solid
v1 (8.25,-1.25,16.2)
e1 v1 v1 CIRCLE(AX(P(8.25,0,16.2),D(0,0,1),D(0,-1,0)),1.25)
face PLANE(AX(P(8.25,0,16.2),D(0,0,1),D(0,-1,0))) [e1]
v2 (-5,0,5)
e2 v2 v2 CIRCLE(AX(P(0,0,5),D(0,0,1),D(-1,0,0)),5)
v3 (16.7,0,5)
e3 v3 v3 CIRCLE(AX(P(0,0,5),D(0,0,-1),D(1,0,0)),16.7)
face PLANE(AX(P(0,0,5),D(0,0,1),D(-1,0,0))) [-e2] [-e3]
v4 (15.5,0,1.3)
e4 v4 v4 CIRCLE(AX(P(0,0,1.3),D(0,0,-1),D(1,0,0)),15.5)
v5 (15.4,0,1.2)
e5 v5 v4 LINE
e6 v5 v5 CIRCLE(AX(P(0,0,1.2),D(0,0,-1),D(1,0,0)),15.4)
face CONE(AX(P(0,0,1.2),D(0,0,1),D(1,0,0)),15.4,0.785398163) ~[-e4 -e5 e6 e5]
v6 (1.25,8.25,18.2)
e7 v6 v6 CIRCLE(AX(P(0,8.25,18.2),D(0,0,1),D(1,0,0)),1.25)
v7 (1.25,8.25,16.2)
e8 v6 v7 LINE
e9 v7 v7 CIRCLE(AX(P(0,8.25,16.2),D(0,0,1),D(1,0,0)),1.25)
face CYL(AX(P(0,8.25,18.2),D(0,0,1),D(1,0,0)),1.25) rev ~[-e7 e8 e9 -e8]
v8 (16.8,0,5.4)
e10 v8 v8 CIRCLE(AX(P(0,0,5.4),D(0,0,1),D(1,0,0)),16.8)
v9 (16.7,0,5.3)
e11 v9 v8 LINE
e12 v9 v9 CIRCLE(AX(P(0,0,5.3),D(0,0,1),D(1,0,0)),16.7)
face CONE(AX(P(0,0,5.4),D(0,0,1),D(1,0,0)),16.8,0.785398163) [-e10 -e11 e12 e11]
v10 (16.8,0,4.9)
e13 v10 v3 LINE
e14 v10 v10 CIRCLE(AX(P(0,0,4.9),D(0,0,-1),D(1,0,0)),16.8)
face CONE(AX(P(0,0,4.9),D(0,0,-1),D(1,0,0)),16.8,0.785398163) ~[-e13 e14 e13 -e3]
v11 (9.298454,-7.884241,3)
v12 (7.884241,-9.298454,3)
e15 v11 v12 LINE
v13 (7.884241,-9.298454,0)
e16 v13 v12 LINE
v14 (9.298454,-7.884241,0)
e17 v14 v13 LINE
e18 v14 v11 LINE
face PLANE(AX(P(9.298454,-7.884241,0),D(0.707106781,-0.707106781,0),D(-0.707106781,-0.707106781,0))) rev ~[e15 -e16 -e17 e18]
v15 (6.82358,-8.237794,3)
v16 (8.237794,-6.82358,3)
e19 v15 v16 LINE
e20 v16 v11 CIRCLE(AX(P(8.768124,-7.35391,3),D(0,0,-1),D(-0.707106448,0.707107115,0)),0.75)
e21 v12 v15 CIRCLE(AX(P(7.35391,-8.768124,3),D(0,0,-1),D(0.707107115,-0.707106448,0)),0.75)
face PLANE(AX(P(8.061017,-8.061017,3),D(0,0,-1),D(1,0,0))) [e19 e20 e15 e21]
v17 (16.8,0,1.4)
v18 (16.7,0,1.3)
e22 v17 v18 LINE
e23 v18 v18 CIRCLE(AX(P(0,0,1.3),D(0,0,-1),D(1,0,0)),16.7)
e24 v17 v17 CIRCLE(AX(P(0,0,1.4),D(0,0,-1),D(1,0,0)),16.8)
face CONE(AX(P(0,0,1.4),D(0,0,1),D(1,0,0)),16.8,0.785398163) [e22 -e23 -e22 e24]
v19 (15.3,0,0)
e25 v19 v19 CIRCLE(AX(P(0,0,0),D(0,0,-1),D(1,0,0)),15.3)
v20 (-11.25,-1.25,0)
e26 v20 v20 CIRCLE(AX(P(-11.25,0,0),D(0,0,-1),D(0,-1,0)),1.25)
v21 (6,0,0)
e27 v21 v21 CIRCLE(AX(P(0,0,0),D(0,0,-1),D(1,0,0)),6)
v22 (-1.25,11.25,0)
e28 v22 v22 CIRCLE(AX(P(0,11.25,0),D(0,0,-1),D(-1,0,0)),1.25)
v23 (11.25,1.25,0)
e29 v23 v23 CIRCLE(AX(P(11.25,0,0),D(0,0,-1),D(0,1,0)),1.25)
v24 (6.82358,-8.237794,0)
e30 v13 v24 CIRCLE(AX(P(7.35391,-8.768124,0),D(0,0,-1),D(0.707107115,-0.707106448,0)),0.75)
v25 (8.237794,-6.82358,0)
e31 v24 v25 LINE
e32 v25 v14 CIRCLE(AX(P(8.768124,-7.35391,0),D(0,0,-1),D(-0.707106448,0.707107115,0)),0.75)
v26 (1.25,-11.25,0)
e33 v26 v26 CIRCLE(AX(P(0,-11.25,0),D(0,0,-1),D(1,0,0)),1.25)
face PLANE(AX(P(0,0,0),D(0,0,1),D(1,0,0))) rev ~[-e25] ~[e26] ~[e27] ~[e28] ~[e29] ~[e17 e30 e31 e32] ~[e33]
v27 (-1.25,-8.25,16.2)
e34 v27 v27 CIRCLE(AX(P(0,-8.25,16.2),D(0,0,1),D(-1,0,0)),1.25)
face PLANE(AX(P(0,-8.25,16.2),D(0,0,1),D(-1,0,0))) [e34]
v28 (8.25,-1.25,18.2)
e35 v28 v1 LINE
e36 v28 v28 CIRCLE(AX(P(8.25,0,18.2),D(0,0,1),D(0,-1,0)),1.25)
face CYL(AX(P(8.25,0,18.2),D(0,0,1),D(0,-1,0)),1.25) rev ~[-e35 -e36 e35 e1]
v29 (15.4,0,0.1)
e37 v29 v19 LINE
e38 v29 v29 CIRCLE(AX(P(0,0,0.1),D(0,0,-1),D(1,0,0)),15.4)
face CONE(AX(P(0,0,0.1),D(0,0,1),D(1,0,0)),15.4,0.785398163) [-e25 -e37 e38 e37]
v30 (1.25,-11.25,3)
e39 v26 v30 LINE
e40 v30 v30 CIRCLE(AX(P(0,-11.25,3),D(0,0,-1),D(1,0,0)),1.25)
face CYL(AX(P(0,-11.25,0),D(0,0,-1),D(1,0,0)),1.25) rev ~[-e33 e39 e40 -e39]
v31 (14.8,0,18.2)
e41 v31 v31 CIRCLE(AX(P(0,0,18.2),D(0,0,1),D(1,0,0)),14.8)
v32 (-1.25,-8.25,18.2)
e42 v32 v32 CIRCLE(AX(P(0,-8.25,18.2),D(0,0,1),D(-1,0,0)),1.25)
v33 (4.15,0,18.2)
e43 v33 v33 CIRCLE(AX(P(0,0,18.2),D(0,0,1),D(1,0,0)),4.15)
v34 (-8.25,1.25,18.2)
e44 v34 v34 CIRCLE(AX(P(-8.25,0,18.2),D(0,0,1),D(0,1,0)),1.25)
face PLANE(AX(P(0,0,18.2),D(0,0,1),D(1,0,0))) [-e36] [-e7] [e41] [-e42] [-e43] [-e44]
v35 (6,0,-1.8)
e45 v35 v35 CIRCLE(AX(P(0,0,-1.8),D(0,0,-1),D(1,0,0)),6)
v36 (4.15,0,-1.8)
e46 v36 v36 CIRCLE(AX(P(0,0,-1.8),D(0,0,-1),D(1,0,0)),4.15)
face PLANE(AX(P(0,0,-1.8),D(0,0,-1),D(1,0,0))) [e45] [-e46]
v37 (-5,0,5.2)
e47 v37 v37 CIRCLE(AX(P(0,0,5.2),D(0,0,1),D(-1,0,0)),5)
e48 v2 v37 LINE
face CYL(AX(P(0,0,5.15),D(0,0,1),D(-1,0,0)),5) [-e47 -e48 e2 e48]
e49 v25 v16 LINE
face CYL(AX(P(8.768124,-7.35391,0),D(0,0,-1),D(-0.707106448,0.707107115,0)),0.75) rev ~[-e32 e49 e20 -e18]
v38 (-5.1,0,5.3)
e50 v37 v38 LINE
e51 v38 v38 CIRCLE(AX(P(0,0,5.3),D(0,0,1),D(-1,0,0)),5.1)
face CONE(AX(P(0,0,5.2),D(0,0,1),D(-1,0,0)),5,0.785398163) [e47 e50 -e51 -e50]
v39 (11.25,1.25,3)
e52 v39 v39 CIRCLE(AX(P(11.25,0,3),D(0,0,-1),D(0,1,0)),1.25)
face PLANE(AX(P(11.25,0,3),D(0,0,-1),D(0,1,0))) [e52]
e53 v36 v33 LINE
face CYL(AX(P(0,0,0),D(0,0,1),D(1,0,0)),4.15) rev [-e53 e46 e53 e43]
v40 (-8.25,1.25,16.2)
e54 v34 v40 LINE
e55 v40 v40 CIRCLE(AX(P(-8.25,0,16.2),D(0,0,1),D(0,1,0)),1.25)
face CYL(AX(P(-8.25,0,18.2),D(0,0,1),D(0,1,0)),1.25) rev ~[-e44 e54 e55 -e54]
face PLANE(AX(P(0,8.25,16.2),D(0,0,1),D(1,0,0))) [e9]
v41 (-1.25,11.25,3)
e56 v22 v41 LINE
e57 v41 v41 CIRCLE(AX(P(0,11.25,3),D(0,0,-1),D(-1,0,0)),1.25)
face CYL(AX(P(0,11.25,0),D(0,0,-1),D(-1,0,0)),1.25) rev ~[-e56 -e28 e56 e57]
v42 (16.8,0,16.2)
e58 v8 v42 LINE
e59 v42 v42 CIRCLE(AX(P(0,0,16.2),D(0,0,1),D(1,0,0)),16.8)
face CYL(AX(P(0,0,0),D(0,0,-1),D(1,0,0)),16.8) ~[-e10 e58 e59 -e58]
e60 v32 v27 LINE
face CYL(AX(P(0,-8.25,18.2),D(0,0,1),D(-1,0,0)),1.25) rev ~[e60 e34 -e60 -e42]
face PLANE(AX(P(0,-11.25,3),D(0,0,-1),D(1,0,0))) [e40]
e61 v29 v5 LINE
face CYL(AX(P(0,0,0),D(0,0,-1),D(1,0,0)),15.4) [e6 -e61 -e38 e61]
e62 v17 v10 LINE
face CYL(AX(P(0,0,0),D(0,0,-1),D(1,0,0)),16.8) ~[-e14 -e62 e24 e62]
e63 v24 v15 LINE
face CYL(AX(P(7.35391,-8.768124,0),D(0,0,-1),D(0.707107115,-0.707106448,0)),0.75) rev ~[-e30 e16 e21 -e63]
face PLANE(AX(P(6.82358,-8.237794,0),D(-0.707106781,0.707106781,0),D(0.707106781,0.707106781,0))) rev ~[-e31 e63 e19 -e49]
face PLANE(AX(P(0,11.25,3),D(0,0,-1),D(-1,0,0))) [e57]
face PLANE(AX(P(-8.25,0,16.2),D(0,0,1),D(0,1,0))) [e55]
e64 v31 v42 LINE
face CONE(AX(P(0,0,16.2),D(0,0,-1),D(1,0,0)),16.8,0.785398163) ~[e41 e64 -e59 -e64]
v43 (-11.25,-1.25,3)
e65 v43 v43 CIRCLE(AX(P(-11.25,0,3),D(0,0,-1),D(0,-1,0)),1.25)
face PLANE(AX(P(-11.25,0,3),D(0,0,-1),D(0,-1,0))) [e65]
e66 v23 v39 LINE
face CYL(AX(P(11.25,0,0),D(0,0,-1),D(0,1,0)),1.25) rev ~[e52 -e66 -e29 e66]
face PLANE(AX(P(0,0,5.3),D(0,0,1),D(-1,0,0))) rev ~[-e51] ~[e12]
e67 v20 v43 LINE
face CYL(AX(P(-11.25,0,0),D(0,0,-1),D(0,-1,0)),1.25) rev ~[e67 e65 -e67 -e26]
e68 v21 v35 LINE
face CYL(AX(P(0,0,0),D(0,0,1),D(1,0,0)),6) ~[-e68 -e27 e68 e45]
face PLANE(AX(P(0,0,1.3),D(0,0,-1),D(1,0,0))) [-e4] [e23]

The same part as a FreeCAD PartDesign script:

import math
import FreeCAD as App
import Part
import Sketcher
Q = App.Units.Quantity


def edges_at(feature, points):
    """Names of the edges that pass closest to the given points."""
    edges = feature.Shape.Edges
    near = lambda p: min(range(len(edges)), key=lambda i: edges[i].distToShape(Part.Vertex(*p))[0])
    return sorted({f"Edge{near(p) + 1}" for p in points})

doc = App.newDocument("Part")
params = doc.addObject("Spreadsheet::Sheet", "Params")
for row, (alias, value) in enumerate([
    ("sketch1_diameter", "33.6 mm"),
    ("pad1_length", "18.2 mm"),
    ("sketch2_diameter", "2.5 mm"),
    ("pocket1_length", "2 mm"),
    ("sketch3_diameter", "8.3 mm"),
    ("sketch4_diameter", "2.5 mm"),
    ("pocket3_length", "3 mm"),
    ("sketch5_diameter", "12 mm"),
    ("sketch5_diameter2", "8.3 mm"),
    ("pad2_length", "1.8 mm"),
    ("sketch6_diameter", "33.6 mm"),
    ("sketch6_diameter2", "30.8 mm"),
    ("pocket4_length", "1.3 mm"),
    ("sketch7_width", "11.8 mm"),
    ("sketch7_height", "0.3 mm"),
    ("groove_angle", "360 deg"),
    ("chamfer_size", "2 mm"),
    ("chamfer2_size", "0.1 mm"),
    ("chamfer3_size", "0.1 mm"),
    ("chamfer4_size", "0.1 mm"),
    ("chamfer5_size", "0.1 mm"),
    ("chamfer6_size", "0.1 mm"),
    ("sketch8_radius", "0.75 mm"),
    ("sketch8_length", "2.000001 mm"),
    ("pocket5_length", "3 mm"),
], start=1):
    params.set(f"A{row}", alias)
    params.set(f"B{row}", "=" + value)
    params.setAlias(f"B{row}", alias)

body = doc.addObject("PartDesign::Body", "Body")

sketch1 = doc.addObject("Sketcher::SketchObject", "Sketch")
body.addObject(sketch1)
sketch1.AttachmentSupport = (doc.XY_Plane, [""])
sketch1.MapMode = "FlatFace"
sketch1.addGeometry(Part.Circle(App.Vector(0, 0, 0), App.Vector(0, 0, 1), 16.8), False)
sketch1.addConstraint([
    Sketcher.Constraint("Coincident", 0, 3, -1, 1),
    Sketcher.Constraint("Diameter", 0, Q("33.6 mm")),
])
sketch1.setExpression("Constraints[1]", "Params.sketch1_diameter")
pad1 = doc.addObject("PartDesign::Pad", "Pad")
body.addObject(pad1)
pad1.Profile = sketch1
pad1.setExpression("Length", "Params.pad1_length")

sketch2 = doc.addObject("Sketcher::SketchObject", "Sketch001")
body.addObject(sketch2)
sketch2.AttachmentSupport = (doc.XY_Plane, [""])
sketch2.MapMode = "FlatFace"
sketch2.AttachmentOffset = App.Placement(App.Vector(0, 0, 18.2), App.Rotation())
sketch2.addGeometry(Part.Circle(App.Vector(0, 8.25, 0), App.Vector(0, 0, 1), 1.25), False)
sketch2.addConstraint([
    Sketcher.Constraint("PointOnObject", 0, 3, -2),
    Sketcher.Constraint("Diameter", 0, Q("2.5 mm")),
    Sketcher.Constraint("DistanceY", -1, 1, 0, 3, Q("8.25 mm")),
])
sketch2.setExpression("Constraints[1]", "Params.sketch2_diameter")
pocket1 = doc.addObject("PartDesign::Pocket", "Pocket")
body.addObject(pocket1)
pocket1.Profile = sketch2
pocket1.setExpression("Length", "Params.pocket1_length")
doc.recompute()

polarpattern = doc.addObject("PartDesign::PolarPattern", "PolarPattern")
body.addObject(polarpattern)
polarpattern.Originals = [pocket1]
polarpattern.Axis = (doc.Z_Axis, [""])
polarpattern.Angle = 360
polarpattern.Occurrences = 4
body.Tip = polarpattern

sketch3 = doc.addObject("Sketcher::SketchObject", "Sketch002")
body.addObject(sketch3)
sketch3.AttachmentSupport = (doc.XY_Plane, [""])
sketch3.MapMode = "FlatFace"
sketch3.AttachmentOffset = App.Placement(App.Vector(0, 0, 18.2), App.Rotation())
sketch3.addGeometry(Part.Circle(App.Vector(0, 0, 0), App.Vector(0, 0, 1), 4.15), False)
sketch3.addConstraint([
    Sketcher.Constraint("Coincident", 0, 3, -1, 1),
    Sketcher.Constraint("Diameter", 0, Q("8.3 mm")),
])
sketch3.setExpression("Constraints[1]", "Params.sketch3_diameter")
pocket2 = doc.addObject("PartDesign::Pocket", "Pocket001")
body.addObject(pocket2)
pocket2.Profile = sketch3
pocket2.Type = "ThroughAll"

sketch4 = doc.addObject("Sketcher::SketchObject", "Sketch003")
body.addObject(sketch4)
sketch4.AttachmentSupport = (doc.XY_Plane, [""])
sketch4.MapMode = "FlatFace"
sketch4.addGeometry(Part.Circle(App.Vector(0, -11.25, 0), App.Vector(0, 0, 1), 1.25), False)
sketch4.addConstraint([
    Sketcher.Constraint("PointOnObject", 0, 3, -2),
    Sketcher.Constraint("Diameter", 0, Q("2.5 mm")),
    Sketcher.Constraint("DistanceY", 0, 3, -1, 1, Q("11.25 mm")),
])
sketch4.setExpression("Constraints[1]", "Params.sketch4_diameter")
pocket3 = doc.addObject("PartDesign::Pocket", "Pocket002")
body.addObject(pocket3)
pocket3.Profile = sketch4
pocket3.setExpression("Length", "Params.pocket3_length")
pocket3.Reversed = True
doc.recompute()

polarpattern2 = doc.addObject("PartDesign::PolarPattern", "PolarPattern001")
body.addObject(polarpattern2)
polarpattern2.Originals = [pocket3]
polarpattern2.Axis = (doc.Z_Axis, [""])
polarpattern2.Angle = 360
polarpattern2.Occurrences = 4
body.Tip = polarpattern2

sketch5 = doc.addObject("Sketcher::SketchObject", "Sketch004")
body.addObject(sketch5)
sketch5.AttachmentSupport = (doc.XY_Plane, [""])
sketch5.MapMode = "FlatFace"
sketch5.addGeometry([
    Part.Circle(App.Vector(0, 0, 0), App.Vector(0, 0, 1), 6),
    Part.Circle(App.Vector(0, 0, 0), App.Vector(0, 0, 1), 4.15),
], False)
sketch5.addConstraint([
    Sketcher.Constraint("Coincident", 0, 3, -1, 1),
    Sketcher.Constraint("Coincident", 1, 3, -1, 1),
    Sketcher.Constraint("Diameter", 0, Q("12 mm")),
    Sketcher.Constraint("Diameter", 1, Q("8.3 mm")),
])
sketch5.setExpression("Constraints[2]", "Params.sketch5_diameter")
sketch5.setExpression("Constraints[3]", "Params.sketch5_diameter2")
pad2 = doc.addObject("PartDesign::Pad", "Pad001")
body.addObject(pad2)
pad2.Profile = sketch5
pad2.setExpression("Length", "Params.pad2_length")
pad2.Reversed = True

sketch6 = doc.addObject("Sketcher::SketchObject", "Sketch005")
body.addObject(sketch6)
sketch6.AttachmentSupport = (doc.XY_Plane, [""])
sketch6.MapMode = "FlatFace"
sketch6.addGeometry([
    Part.Circle(App.Vector(0, 0, 0), App.Vector(0, 0, 1), 16.8),
    Part.Circle(App.Vector(0, 0, 0), App.Vector(0, 0, 1), 15.4),
], False)
sketch6.addConstraint([
    Sketcher.Constraint("Coincident", 0, 3, -1, 1),
    Sketcher.Constraint("Coincident", 1, 3, -1, 1),
    Sketcher.Constraint("Diameter", 0, Q("33.6 mm")),
    Sketcher.Constraint("Diameter", 1, Q("30.8 mm")),
])
sketch6.setExpression("Constraints[2]", "Params.sketch6_diameter")
sketch6.setExpression("Constraints[3]", "Params.sketch6_diameter2")
pocket4 = doc.addObject("PartDesign::Pocket", "Pocket003")
body.addObject(pocket4)
pocket4.Profile = sketch6
pocket4.setExpression("Length", "Params.pocket4_length")
pocket4.Reversed = True

sketch7 = doc.addObject("Sketcher::SketchObject", "Sketch006")
body.addObject(sketch7)
sketch7.AttachmentSupport = (doc.XZ_Plane, [""])
sketch7.MapMode = "FlatFace"
sketch7.addGeometry([
    Part.LineSegment(App.Vector(-16.8, 5.3, 0), App.Vector(-16.8, 5, 0)),
    Part.LineSegment(App.Vector(-16.8, 5, 0), App.Vector(-5, 5, 0)),
    Part.LineSegment(App.Vector(-5, 5, 0), App.Vector(-5, 5.3, 0)),
    Part.LineSegment(App.Vector(-5, 5.3, 0), App.Vector(-16.8, 5.3, 0)),
], False)
sketch7.addConstraint([
    Sketcher.Constraint("Coincident", 0, 2, 1, 1),
    Sketcher.Constraint("Coincident", 1, 2, 2, 1),
    Sketcher.Constraint("Coincident", 2, 2, 3, 1),
    Sketcher.Constraint("Coincident", 3, 2, 0, 1),
    Sketcher.Constraint("Vertical", 0),
    Sketcher.Constraint("Horizontal", 1),
    Sketcher.Constraint("Vertical", 2),
    Sketcher.Constraint("Horizontal", 3),
    Sketcher.Constraint("DistanceX", 1, 1, 1, 2, Q("11.8 mm")),
    Sketcher.Constraint("DistanceY", 0, 2, 0, 1, Q("0.3 mm")),
    Sketcher.Constraint("DistanceY", -1, 1, 0, 2, Q("5 mm")),
    Sketcher.Constraint("DistanceX", 1, 2, -1, 1, Q("5 mm")),
])
sketch7.setExpression("Constraints[8]", "Params.sketch7_width")
sketch7.setExpression("Constraints[9]", "Params.sketch7_height")
groove = doc.addObject("PartDesign::Groove", "Groove")
body.addObject(groove)
groove.Profile = sketch7
groove.ReferenceAxis = (sketch7, ["V_Axis"])
groove.setExpression("Angle", "Params.groove_angle")
doc.recompute()

chamfer = doc.addObject("PartDesign::Chamfer", "Chamfer")
body.addObject(chamfer)
chamfer.Base = (groove, edges_at(groove, [(-16.8, 0, 18.2)]))
chamfer.setExpression("Size", "Params.chamfer_size")
doc.recompute()

chamfer2 = doc.addObject("PartDesign::Chamfer", "Chamfer001")
body.addObject(chamfer2)
chamfer2.Base = (chamfer, edges_at(chamfer, [(-16.8, 0, 1.3)]))
chamfer2.setExpression("Size", "Params.chamfer2_size")
doc.recompute()

chamfer3 = doc.addObject("PartDesign::Chamfer", "Chamfer002")
body.addObject(chamfer3)
chamfer3.Base = (chamfer2, edges_at(chamfer2, [(-15.4, 0, 0)]))
chamfer3.setExpression("Size", "Params.chamfer3_size")
doc.recompute()

chamfer4 = doc.addObject("PartDesign::Chamfer", "Chamfer003")
body.addObject(chamfer4)
chamfer4.Base = (chamfer3, edges_at(chamfer3, [(-15.4, 0, 1.3)]))
chamfer4.setExpression("Size", "Params.chamfer4_size")
doc.recompute()

chamfer5 = doc.addObject("PartDesign::Chamfer", "Chamfer004")
body.addObject(chamfer5)
chamfer5.Base = (chamfer4, edges_at(chamfer4, [(-16.8, 0, 5)]))
chamfer5.setExpression("Size", "Params.chamfer5_size")
doc.recompute()

chamfer6 = doc.addObject("PartDesign::Chamfer", "Chamfer005")
body.addObject(chamfer6)
chamfer6.Base = (chamfer5, edges_at(chamfer5, [(5, 0, 5.3), (-16.8, 0, 5.3), (-16.8, 0, 5.3)]))
chamfer6.setExpression("Size", "Params.chamfer6_size")

sketch8 = doc.addObject("Sketcher::SketchObject", "Sketch007")
body.addObject(sketch8)
sketch8.AttachmentSupport = (doc.XY_Plane, [""])
sketch8.MapMode = "FlatFace"
sketch8.addGeometry([
    Part.ArcOfCircle(Part.Circle(App.Vector(7.35391, -8.768124, 0), App.Vector(0, 0, 1), 0.75), math.radians(135.000027), math.radians(315.000027)),
    Part.LineSegment(App.Vector(6.82358, -8.237794, 0), App.Vector(8.237794, -6.82358, 0)),
    Part.ArcOfCircle(Part.Circle(App.Vector(8.768124, -7.35391, 0), App.Vector(0, 0, 1), 0.75), math.radians(-45.000027), math.radians(134.999973)),
    Part.LineSegment(App.Vector(9.298454, -7.884241, 0), App.Vector(7.884241, -9.298454, 0)),
], False)
sketch8.addConstraint([
    Sketcher.Constraint("Tangent", 0, 1, 1, 1),
    Sketcher.Constraint("Tangent", 1, 2, 2, 2),
    Sketcher.Constraint("Tangent", 2, 1, 3, 1),
    Sketcher.Constraint("Tangent", 3, 2, 0, 2),
    Sketcher.Constraint("Equal", 0, 2),
    Sketcher.Constraint("Angle", 1, Q("45 deg")),
    Sketcher.Constraint("Radius", 0, Q("0.75 mm")),
    Sketcher.Constraint("Distance", 1, Q("2.000001 mm")),
    Sketcher.Constraint("DistanceX", -1, 1, 0, 3, Q("7.35391 mm")),
    Sketcher.Constraint("DistanceY", 2, 3, -1, 1, Q("7.35391 mm")),
])
sketch8.setExpression("Constraints[6]", "Params.sketch8_radius")
sketch8.setExpression("Constraints[7]", "Params.sketch8_length")
pocket5 = doc.addObject("PartDesign::Pocket", "Pocket004")
body.addObject(pocket5)
pocket5.Profile = sketch8
pocket5.setExpression("Length", "Params.pocket5_length")
pocket5.Reversed = True

doc.recompute()
